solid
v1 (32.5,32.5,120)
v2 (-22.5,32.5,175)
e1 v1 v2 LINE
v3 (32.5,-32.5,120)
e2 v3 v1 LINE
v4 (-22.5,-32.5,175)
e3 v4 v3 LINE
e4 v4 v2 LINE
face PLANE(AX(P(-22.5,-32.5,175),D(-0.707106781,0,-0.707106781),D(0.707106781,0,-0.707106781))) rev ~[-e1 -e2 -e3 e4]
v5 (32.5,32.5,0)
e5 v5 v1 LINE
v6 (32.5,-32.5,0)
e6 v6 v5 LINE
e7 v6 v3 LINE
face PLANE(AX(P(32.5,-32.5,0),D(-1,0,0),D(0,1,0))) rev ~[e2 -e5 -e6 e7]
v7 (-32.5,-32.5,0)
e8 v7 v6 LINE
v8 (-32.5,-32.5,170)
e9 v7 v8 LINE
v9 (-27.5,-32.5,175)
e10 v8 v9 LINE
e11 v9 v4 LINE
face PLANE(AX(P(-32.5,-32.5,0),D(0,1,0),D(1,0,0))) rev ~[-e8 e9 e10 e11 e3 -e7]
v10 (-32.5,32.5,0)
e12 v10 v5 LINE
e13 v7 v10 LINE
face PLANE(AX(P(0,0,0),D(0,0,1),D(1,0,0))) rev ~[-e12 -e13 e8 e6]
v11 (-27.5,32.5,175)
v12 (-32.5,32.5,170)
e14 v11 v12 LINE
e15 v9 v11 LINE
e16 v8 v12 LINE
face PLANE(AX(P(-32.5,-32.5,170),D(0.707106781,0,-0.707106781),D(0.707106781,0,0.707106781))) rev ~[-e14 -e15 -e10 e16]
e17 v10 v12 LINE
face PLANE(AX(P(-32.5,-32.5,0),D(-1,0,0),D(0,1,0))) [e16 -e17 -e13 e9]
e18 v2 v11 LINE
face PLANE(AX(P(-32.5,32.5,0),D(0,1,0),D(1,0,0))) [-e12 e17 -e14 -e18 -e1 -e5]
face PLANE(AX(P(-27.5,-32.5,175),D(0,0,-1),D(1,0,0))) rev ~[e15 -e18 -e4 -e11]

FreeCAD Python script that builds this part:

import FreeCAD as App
import Part
import Sketcher
Q = App.Units.Quantity


def add_polygon(sketch, points):
    """Adds a closed chain of lines whose ends are joined by coincident constraints."""
    first, n = sketch.GeometryCount, len(points)
    for a, b in zip(points, points[1:] + points[:1]):
        sketch.addGeometry(Part.LineSegment(App.Vector(*a, 0), App.Vector(*b, 0)), False)
    for i in range(n):
        sketch.addConstraint(Sketcher.Constraint("Coincident", first + i, 2, first + (i + 1) % n, 1))

doc = App.newDocument("Part")
body = doc.addObject("PartDesign::Body", "Body")

sketch1 = body.newObject("Sketcher::SketchObject", "Sketch")
sketch1.AttachmentSupport = (doc.getObject("XY_Plane"), [""])
sketch1.MapMode = "FlatFace"
add_polygon(sketch1, [(-32, 32), (-32, -32), (32, -32), (32, 32)])
sketch1.addConstraint([
    Sketcher.Constraint("Vertical", 0),
    Sketcher.Constraint("Horizontal", 1),
    Sketcher.Constraint("Vertical", 2),
    Sketcher.Constraint("Horizontal", 3),
    Sketcher.Constraint("Symmetric", 0, 2, 2, 2, -1, 1),
    Sketcher.Constraint("Equal", 3, 0),
    Sketcher.Constraint("DistanceX", 1, 1, 1, 2, Q("65 mm")),
])
pad1 = body.newObject("PartDesign::Pad", "Pad")
pad1.Profile = sketch1
pad1.Length = 350

sketch2 = body.newObject("Sketcher::SketchObject", "Sketch001")
sketch2.AttachmentSupport = (doc.getObject("XZ_Plane"), [""])
sketch2.MapMode = "FlatFace"
sketch2.AttachmentOffset = App.Placement(App.Vector(0, 0, 32.5), App.Rotation())
add_polygon(sketch2, [(-22, 175), (32, 120), (32, 230)])
add_polygon(sketch2, [(-32, 180), (-32, 170), (-28, 175)])
sketch2.addConstraint([
    Sketcher.Constraint("Vertical", 1),
    Sketcher.Constraint("Vertical", 3),
    Sketcher.Constraint("Perpendicular", 0, 2),
    Sketcher.Constraint("Parallel", 2, 4),
    Sketcher.Constraint("Perpendicular", 4, 5),
    Sketcher.Constraint("Horizontal", 2, 2, 4, 2),
    Sketcher.Constraint("Equal", 0, 2),
    Sketcher.Constraint("DistanceY", 1, 1, 1, 2, Q("110 mm")),
    Sketcher.Constraint("DistanceY", 3, 2, 3, 1, Q("10 mm")),
    Sketcher.Constraint("DistanceY", -1, 1, 0, 2, Q("120 mm")),
    Sketcher.Constraint("DistanceX", 3, 2, 2, 2, Q("10 mm")),
    Sketcher.Constraint("DistanceX", -1, 1, 0, 2, Q("32.5 mm")),
])
pocket1 = body.newObject("PartDesign::Pocket", "Pocket")
pocket1.Profile = sketch2
pocket1.Type = "ThroughAll"

sketch3 = body.newObject("Sketcher::SketchObject", "Sketch002")
sketch3.AttachmentSupport = (doc.getObject("XZ_Plane"), [""])
sketch3.MapMode = "FlatFace"
sketch3.AttachmentOffset = App.Placement(App.Vector(0, 0, 32.5), App.Rotation())
add_polygon(sketch3, [(-32, 180), (-28, 175), (-22, 175), (32, 230), (32, 350), (-32, 350)])
sketch3.addConstraint([
    Sketcher.Constraint("Horizontal", 1),
    Sketcher.Constraint("Vertical", 3),
    Sketcher.Constraint("Horizontal", 4),
    Sketcher.Constraint("Vertical", 5),
    Sketcher.Constraint("Perpendicular", 0, 2),
    Sketcher.Constraint("DistanceX", 1, 1, 1, 2, Q("5 mm")),
    Sketcher.Constraint("DistanceX", 4, 2, 4, 1, Q("65 mm")),
    Sketcher.Constraint("DistanceY", 3, 1, 3, 2, Q("120 mm")),
    Sketcher.Constraint("DistanceY", 5, 2, 5, 1, Q("170 mm")),
    Sketcher.Constraint("Angle", 0, Q("-45 deg")),
    Sketcher.Constraint("DistanceY", -1, 1, 0, 2, Q("175 mm")),
    Sketcher.Constraint("DistanceX", 0, 2, -1, 1, Q("27.5 mm")),
])
pocket2 = body.newObject("PartDesign::Pocket", "Pocket001")
pocket2.Profile = sketch3
pocket2.Type = "ThroughAll"
body2 = doc.addObject("PartDesign::Body", "Body001")

sketch4 = body2.newObject("Sketcher::SketchObject", "Sketch003")
sketch4.Placement = App.Placement(App.Vector(76.25, 0, 76.25), App.Rotation(App.Vector(0.707106781, 0, -0.707106781), App.Vector(0, 0.999999999, 0), App.Vector(0.707106781, 0, 0.707106781), "ZXY"))
add_polygon(sketch4, [(-137, 32), (-137, -32), (-62, -32), (-62, 32)])
sketch4.addConstraint([
    Sketcher.Constraint("Vertical", 0),
    Sketcher.Constraint("Horizontal", 1),
    Sketcher.Constraint("Vertical", 2),
    Sketcher.Constraint("Horizontal", 3),
    Sketcher.Constraint("DistanceX", 1, 1, 1, 2, Q("75 mm")),
    Sketcher.Constraint("DistanceY", 0, 2, 0, 1, Q("65 mm")),
    Sketcher.Constraint("DistanceY", 0, 2, -1, 1, Q("32.5 mm")),
    Sketcher.Constraint("DistanceX", 0, 2, -1, 1, Q("136.871843 mm")),
])
pad2 = body2.newObject("PartDesign::Pad", "Pad001")
pad2.Profile = sketch4
pad2.Length = 2
body3 = doc.addObject("PartDesign::Body", "Body002")

sketch5 = body3.newObject("Sketcher::SketchObject", "Sketch004")
sketch5.Placement = App.Placement(App.Vector(-98.75, 0, 98.75), App.Rotation(App.Vector(0, 1, 0), App.Vector(0.707106781, 0, 0.707106781), App.Vector(0.707106781, 0, -0.707106781), "ZXY"))
add_polygon(sketch5, [(-32, 186), (-32, 111), (32, 111), (32, 186)])
sketch5.addConstraint([
    Sketcher.Constraint("Vertical", 0),
    Sketcher.Constraint("Horizontal", 1),
    Sketcher.Constraint("Vertical", 2),
    Sketcher.Constraint("Horizontal", 3),
    Sketcher.Constraint("DistanceX", 1, 1, 1, 2, Q("65 mm")),
    Sketcher.Constraint("DistanceY", 0, 2, 0, 1, Q("75 mm")),
    Sketcher.Constraint("DistanceX", 0, 2, -1, 1, Q("32.5 mm")),
    Sketcher.Constraint("DistanceY", -1, 1, 0, 2, Q("110.61553 mm")),
])
pad3 = body3.newObject("PartDesign::Pad", "Pad002")
pad3.Profile = sketch5
pad3.Length = 2
body2.Visibility = False
body3.Visibility = False

doc.recompute()
